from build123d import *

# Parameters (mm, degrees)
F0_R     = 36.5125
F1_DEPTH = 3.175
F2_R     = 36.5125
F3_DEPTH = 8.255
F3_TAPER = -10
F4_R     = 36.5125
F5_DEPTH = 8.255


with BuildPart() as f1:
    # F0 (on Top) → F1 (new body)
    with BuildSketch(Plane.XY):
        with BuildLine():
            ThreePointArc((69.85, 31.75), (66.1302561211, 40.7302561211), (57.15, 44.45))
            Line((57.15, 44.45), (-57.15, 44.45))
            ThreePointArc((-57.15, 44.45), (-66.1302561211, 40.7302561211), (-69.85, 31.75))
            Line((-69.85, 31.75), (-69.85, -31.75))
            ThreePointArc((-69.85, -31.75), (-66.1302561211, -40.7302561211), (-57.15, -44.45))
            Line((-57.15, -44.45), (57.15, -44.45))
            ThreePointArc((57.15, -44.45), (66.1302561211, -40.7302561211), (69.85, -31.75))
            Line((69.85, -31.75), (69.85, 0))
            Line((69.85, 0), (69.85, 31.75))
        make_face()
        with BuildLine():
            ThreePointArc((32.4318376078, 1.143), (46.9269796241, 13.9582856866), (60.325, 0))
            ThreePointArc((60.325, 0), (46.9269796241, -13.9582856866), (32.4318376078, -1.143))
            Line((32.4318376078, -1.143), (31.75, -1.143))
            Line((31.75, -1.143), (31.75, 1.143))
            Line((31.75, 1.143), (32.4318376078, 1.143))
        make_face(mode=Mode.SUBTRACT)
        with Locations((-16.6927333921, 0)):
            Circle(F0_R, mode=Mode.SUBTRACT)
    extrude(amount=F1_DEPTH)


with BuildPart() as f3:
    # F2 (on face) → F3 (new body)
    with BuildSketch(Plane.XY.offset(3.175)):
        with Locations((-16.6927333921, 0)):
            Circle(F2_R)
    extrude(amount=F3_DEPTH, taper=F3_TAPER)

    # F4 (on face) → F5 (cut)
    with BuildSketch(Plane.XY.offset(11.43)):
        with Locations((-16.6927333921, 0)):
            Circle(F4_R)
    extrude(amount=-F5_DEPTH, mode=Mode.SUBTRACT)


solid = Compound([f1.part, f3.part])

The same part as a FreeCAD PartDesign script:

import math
import FreeCAD as App
import Part
import Sketcher

V = App.Vector
Q = App.Units.Quantity

doc = App.newDocument("Part")
body = doc.addObject("PartDesign::Body", "Body")

sketch1 = doc.addObject("Sketcher::SketchObject", "Sketch")
body.addObject(sketch1)
sketch1.AttachmentSupport = (doc.XY_Plane, [""])
sketch1.MapMode = "FlatFace"
sketch1.addGeometry(Part.ArcOfCircle(Part.Circle(V(57.1, 31.8, 0), V(0, 0, 1), 12.7), math.radians(0), math.radians(90)), False)
sketch1.addGeometry(Part.LineSegment(V(57.1, 44.5, 0), V(-57.1, 44.5, 0)), False)
sketch1.addGeometry(Part.ArcOfCircle(Part.Circle(V(-57.1, 31.8, 0), V(0, 0, 1), 12.7), math.radians(90), math.radians(180)), False)
sketch1.addGeometry(Part.LineSegment(V(-69.8, 31.8, 0), V(-69.8, -31.8, 0)), False)
sketch1.addGeometry(Part.ArcOfCircle(Part.Circle(V(-57.1, -31.8, 0), V(0, 0, 1), 12.7), math.radians(180), math.radians(270)), False)
sketch1.addGeometry(Part.LineSegment(V(-57.1, -44.5, 0), V(57.1, -44.5, 0)), False)
sketch1.addGeometry(Part.ArcOfCircle(Part.Circle(V(57.1, -31.8, 0), V(0, 0, 1), 12.7), math.radians(-90), math.radians(0)), False)
sketch1.addGeometry(Part.LineSegment(V(69.8, -31.8, 0), V(69.8, 31.8, 0)), False)
sketch1.addGeometry(Part.Circle(V(-16.7, 0, 0), V(0, 0, 1), 36.5), False)
sketch1.addGeometry(Part.LineSegment(V(31.8, 1.1, 0), V(32.4, 1.1, 0)), False)
sketch1.addGeometry(Part.ArcOfCircle(Part.Circle(V(46.4, 0, 0), V(0, 0, 1), 14), math.radians(0), math.radians(175)), False)
sketch1.addGeometry(Part.ArcOfCircle(Part.Circle(V(46.4, 0, 0), V(0, 0, 1), 14), math.radians(-175), math.radians(0)), False)
sketch1.addGeometry(Part.LineSegment(V(32.4, -1.1, 0), V(31.8, -1.1, 0)), False)
sketch1.addGeometry(Part.LineSegment(V(31.8, -1.1, 0), V(31.8, 1.1, 0)), False)
sketch1.addConstraint(Sketcher.Constraint("Tangent", 0, 2, 1, 1))
sketch1.addConstraint(Sketcher.Constraint("Tangent", 1, 2, 2, 1))
sketch1.addConstraint(Sketcher.Constraint("Tangent", 2, 2, 3, 1))
sketch1.addConstraint(Sketcher.Constraint("Tangent", 3, 2, 4, 1))
sketch1.addConstraint(Sketcher.Constraint("Tangent", 4, 2, 5, 1))
sketch1.addConstraint(Sketcher.Constraint("Tangent", 5, 2, 6, 1))
sketch1.addConstraint(Sketcher.Constraint("Tangent", 6, 2, 7, 1))
sketch1.addConstraint(Sketcher.Constraint("Tangent", 7, 2, 0, 1))
sketch1.addConstraint(Sketcher.Constraint("Coincident", 9, 2, 10, 2))
sketch1.addConstraint(Sketcher.Constraint("Tangent", 10, 1, 11, 2))
sketch1.addConstraint(Sketcher.Constraint("Coincident", 11, 1, 12, 1))
sketch1.addConstraint(Sketcher.Constraint("Coincident", 12, 2, 13, 1))
sketch1.addConstraint(Sketcher.Constraint("Coincident", 13, 2, 9, 1))
sketch1.addConstraint(Sketcher.Constraint("Horizontal", 1))
sketch1.addConstraint(Sketcher.Constraint("Vertical", 3))
sketch1.addConstraint(Sketcher.Constraint("Horizontal", 5))
sketch1.addConstraint(Sketcher.Constraint("Vertical", 7))
sketch1.addConstraint(Sketcher.Constraint("Horizontal", 9))
sketch1.addConstraint(Sketcher.Constraint("Horizontal", 12))
sketch1.addConstraint(Sketcher.Constraint("Vertical", 13))
sketch1.addConstraint(Sketcher.Constraint("Equal", 0, 2))
sketch1.addConstraint(Sketcher.Constraint("Equal", 2, 4))
sketch1.addConstraint(Sketcher.Constraint("Equal", 4, 6))
sketch1.addConstraint(Sketcher.Constraint("Equal", 10, 11))
sketch1.addConstraint(Sketcher.Constraint("Symmetric", 0, 3, 4, 3, -1, 1))
sketch1.addConstraint(Sketcher.Constraint("Symmetric", 9, 2, 11, 1, -1))
sketch1.addConstraint(Sketcher.Constraint("PointOnObject", 8, 3, -1))
sketch1.addConstraint(Sketcher.Constraint("PointOnObject", 10, 1, -1))
sketch1.addConstraint(Sketcher.Constraint("Radius", 0, Q("0.5 in")))
sketch1.addConstraint(Sketcher.Constraint("Radius", 10, Q("0.55 in")))
sketch1.addConstraint(Sketcher.Constraint("Diameter", 8, Q("2.875 in")))
sketch1.addConstraint(Sketcher.Constraint("DistanceX", 1, 2, 1, 1, Q("4.5 in")))
sketch1.addConstraint(Sketcher.Constraint("DistanceY", 3, 2, 3, 1, Q("2.5 in")))
sketch1.addConstraint(Sketcher.Constraint("DistanceY", 13, 1, 13, 2, Q("0.09 in")))
sketch1.addConstraint(Sketcher.Constraint("DistanceX", -1, 1, 12, 2, Q("1.25 in")))
sketch1.addConstraint(Sketcher.Constraint("DistanceX", -1, 1, 10, 3, Q("1.825 in")))
sketch1.addConstraint(Sketcher.Constraint("DistanceX", 8, 3, -1, 1, 16.692733))
pad1 = doc.addObject("PartDesign::Pad", "Pad")
body.addObject(pad1)
pad1.Profile = sketch1
pad1.Length = Q("0.125 in")
body2 = doc.addObject("PartDesign::Body", "Body001")

sketch2 = doc.addObject("Sketcher::SketchObject", "Sketch001")
body2.addObject(sketch2)
sketch2.AttachmentSupport = (doc.getObject("XY_Plane001"), [""])
sketch2.MapMode = "FlatFace"
sketch2.AttachmentOffset = App.Placement(V(0, 0, 0.125 * 25.4), App.Rotation())
sketch2.addGeometry(Part.Circle(V(-17, 0, 0), V(0, 0, 1), 37), False)
sketch2.addConstraint(Sketcher.Constraint("PointOnObject", 0, 3, -1))
sketch2.addConstraint(Sketcher.Constraint("Diameter", 0, Q("2.875 in")))
sketch2.addConstraint(Sketcher.Constraint("DistanceX", 0, 3, -1, 1, 16.692733))
pad2 = doc.addObject("PartDesign::Pad", "Pad001")
body2.addObject(pad2)
pad2.Profile = sketch2
pad2.Length = Q("0.325 in")
pad2.TaperAngle = 10

sketch3 = doc.addObject("Sketcher::SketchObject", "Sketch002")
body2.addObject(sketch3)
sketch3.AttachmentSupport = (doc.getObject("XY_Plane001"), [""])
sketch3.MapMode = "FlatFace"
sketch3.AttachmentOffset = App.Placement(V(0, 0, 0.45 * 25.4), App.Rotation())
sketch3.addGeometry(Part.Circle(V(-17, 0, 0), V(0, 0, 1), 37), False)
sketch3.addConstraint(Sketcher.Constraint("PointOnObject", 0, 3, -1))
sketch3.addConstraint(Sketcher.Constraint("Diameter", 0, Q("2.875 in")))
sketch3.addConstraint(Sketcher.Constraint("DistanceX", 0, 3, -1, 1, 16.692733))
pocket1 = doc.addObject("PartDesign::Pocket", "Pocket")
body2.addObject(pocket1)
pocket1.Profile = sketch3
pocket1.Length = Q("0.325 in")

doc.recompute()
